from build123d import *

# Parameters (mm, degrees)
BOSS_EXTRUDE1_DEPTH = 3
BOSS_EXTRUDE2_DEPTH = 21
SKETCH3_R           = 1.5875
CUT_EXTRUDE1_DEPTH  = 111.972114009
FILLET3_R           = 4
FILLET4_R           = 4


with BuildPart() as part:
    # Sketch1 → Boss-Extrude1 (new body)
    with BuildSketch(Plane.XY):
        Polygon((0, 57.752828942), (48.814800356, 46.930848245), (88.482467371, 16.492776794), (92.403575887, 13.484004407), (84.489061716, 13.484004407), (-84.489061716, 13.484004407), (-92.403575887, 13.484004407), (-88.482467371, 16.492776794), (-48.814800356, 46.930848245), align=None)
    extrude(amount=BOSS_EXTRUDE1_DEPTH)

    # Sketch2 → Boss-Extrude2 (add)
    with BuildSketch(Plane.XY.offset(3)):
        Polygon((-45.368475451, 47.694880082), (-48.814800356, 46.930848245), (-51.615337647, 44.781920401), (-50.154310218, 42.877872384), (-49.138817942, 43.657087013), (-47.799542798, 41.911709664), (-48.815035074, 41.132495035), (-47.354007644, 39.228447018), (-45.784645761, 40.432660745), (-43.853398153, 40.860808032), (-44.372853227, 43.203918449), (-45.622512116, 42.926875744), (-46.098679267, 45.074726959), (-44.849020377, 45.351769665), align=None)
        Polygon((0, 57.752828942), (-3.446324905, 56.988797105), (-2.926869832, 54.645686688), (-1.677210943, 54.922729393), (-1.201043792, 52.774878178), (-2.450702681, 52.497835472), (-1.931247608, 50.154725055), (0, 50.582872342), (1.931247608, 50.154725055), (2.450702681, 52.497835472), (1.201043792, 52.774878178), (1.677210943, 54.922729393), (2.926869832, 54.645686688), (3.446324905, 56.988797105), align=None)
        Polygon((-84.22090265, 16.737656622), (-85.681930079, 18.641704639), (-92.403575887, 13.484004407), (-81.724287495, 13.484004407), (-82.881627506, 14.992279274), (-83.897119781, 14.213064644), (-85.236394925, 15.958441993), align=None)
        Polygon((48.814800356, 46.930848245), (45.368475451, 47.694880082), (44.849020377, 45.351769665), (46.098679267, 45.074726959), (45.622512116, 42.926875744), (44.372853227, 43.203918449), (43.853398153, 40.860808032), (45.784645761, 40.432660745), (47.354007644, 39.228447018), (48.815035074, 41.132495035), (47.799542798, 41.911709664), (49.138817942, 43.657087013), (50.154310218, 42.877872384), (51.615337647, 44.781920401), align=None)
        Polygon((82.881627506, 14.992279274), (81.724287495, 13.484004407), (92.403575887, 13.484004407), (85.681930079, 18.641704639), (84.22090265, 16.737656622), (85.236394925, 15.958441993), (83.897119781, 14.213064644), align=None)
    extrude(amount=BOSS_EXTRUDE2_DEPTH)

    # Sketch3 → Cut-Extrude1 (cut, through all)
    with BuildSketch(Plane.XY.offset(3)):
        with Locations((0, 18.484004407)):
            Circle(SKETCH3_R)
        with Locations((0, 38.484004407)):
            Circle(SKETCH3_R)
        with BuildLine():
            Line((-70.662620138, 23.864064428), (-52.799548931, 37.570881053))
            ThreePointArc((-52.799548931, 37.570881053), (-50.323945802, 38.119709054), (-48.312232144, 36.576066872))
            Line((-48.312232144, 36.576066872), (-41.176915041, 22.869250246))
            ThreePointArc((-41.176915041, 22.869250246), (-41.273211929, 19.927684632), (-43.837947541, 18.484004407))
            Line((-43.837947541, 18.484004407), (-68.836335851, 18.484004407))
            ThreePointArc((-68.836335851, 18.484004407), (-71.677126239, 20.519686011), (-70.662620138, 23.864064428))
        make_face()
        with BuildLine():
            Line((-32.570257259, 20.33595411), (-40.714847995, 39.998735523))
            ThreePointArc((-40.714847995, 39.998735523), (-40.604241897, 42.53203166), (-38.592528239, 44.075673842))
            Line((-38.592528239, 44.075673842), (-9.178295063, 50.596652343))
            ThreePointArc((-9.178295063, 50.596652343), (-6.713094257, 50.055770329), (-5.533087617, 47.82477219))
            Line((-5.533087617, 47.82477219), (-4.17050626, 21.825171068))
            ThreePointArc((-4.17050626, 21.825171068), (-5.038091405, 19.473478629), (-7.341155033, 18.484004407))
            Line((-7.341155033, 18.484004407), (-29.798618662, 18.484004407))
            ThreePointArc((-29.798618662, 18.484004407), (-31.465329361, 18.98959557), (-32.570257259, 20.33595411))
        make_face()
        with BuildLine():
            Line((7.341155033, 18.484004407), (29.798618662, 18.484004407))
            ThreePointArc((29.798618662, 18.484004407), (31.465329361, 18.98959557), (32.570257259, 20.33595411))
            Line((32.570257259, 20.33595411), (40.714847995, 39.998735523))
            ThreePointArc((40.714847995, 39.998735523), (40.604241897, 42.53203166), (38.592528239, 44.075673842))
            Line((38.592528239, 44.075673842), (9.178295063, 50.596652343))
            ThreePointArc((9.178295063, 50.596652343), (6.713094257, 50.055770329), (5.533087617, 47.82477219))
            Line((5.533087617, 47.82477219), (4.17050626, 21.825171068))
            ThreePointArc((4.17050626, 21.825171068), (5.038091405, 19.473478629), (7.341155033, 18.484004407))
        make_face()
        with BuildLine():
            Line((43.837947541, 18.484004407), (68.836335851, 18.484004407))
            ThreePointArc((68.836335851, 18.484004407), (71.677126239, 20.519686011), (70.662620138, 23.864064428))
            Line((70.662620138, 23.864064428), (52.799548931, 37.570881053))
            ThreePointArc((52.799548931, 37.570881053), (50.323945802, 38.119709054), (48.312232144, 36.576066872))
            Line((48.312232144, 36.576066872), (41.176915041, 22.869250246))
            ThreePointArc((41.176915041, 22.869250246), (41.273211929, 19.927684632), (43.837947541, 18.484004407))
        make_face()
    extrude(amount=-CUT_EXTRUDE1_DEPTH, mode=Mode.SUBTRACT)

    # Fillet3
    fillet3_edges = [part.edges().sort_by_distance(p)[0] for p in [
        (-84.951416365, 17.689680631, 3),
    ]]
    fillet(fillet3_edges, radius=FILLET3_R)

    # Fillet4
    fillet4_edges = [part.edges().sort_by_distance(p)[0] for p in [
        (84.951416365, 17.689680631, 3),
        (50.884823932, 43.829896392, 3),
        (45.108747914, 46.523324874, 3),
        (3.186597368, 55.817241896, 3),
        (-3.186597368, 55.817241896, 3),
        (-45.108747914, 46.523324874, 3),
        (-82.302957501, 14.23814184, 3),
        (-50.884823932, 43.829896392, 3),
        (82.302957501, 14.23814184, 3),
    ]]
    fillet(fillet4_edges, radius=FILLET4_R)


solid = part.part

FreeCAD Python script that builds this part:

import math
import FreeCAD as App
import Part
import Sketcher
Q = App.Units.Quantity


def edges_at(feature, points):
    """Names of the edges that pass closest to the given points."""
    edges = feature.Shape.Edges
    near = lambda p: min(range(len(edges)), key=lambda i: edges[i].distToShape(Part.Vertex(*p))[0])
    return sorted({f"Edge{near(p) + 1}" for p in points})


def add_polygon(sketch, points):
    """Adds a closed chain of lines whose ends are joined by coincident constraints."""
    first, n = sketch.GeometryCount, len(points)
    for a, b in zip(points, points[1:] + points[:1]):
        sketch.addGeometry(Part.LineSegment(App.Vector(*a, 0), App.Vector(*b, 0)), False)
    for i in range(n):
        sketch.addConstraint(Sketcher.Constraint("Coincident", first + i, 2, first + (i + 1) % n, 1))

doc = App.newDocument("Part")
params = doc.addObject("Spreadsheet::Sheet", "Params")
for row, (alias, value) in enumerate([
    ("sketch1_length", "50 mm"),
    ("pad1_length", "3 mm"),
    ("sketch2_length", "2.4 mm"),
    ("sketch2_length2", "2.2 mm"),
    ("sketch2_length3", "3.53 mm"),
    ("sketch2_length4", "1.28 mm"),
    ("pad2_length", "21 mm"),
    ("sketch3_radius", "3 mm"),
    ("fillet_radius", "4 mm"),
    ("fillet2_radius", "4 mm"),
], start=1):
    params.set(f"A{row}", alias)
    params.set(f"B{row}", "=" + value)
    params.setAlias(f"B{row}", alias)

body = doc.addObject("PartDesign::Body", "Body")

sketch1 = body.newObject("Sketcher::SketchObject", "Sketch")
sketch1.AttachmentSupport = (doc.getObject("XY_Plane"), [""])
sketch1.MapMode = "FlatFace"
add_polygon(sketch1, [(48.8148, 46.930848), (0, 57.752829), (-48.8148, 46.930848), (-88.482467, 16.492777), (-92.403576, 13.484004), (92.403576, 13.484004), (88.482467, 16.492777)])
sketch1.addConstraint([
    Sketcher.Constraint("Horizontal", 4),
    Sketcher.Constraint("Symmetric", 2, 2, 5, 2, -2),
    Sketcher.Constraint("Symmetric", 1, 2, 6, 2, -2),
    Sketcher.Constraint("PointOnObject", 0, 2, -2),
    Sketcher.Constraint("Parallel", 2, 3),
    Sketcher.Constraint("Parallel", 5, 6),
    Sketcher.Constraint("Equal", 1, 2),
    Sketcher.Constraint("Distance", 0, 50.0),
    Sketcher.Constraint("Angle", 0, Q("167.5 deg")),
    Sketcher.Constraint("Angle", 2, Q("-142.5 deg")),
    Sketcher.Constraint("DistanceX", 4, 1, 4, 2, 184.807152),
    Sketcher.Constraint("DistanceY", -1, 1, 0, 2, 57.752829),
])
sketch1.setExpression("Constraints[14]", "Params.sketch1_length")
pad1 = body.newObject("PartDesign::Pad", "Pad")
pad1.Profile = sketch1
pad1.setExpression("Length", "Params.pad1_length")

sketch2 = body.newObject("Sketcher::SketchObject", "Sketch001")
sketch2.AttachmentSupport = (doc.getObject("XY_Plane"), [""])
sketch2.MapMode = "FlatFace"
sketch2.AttachmentOffset = App.Placement(App.Vector(0, 0, 3), App.Rotation())
add_polygon(sketch2, [(-45.368475, 47.69488), (-48.8148, 46.930848), (-51.615338, 44.78192), (-50.15431, 42.877872), (-49.138818, 43.657087), (-47.799543, 41.91171), (-48.815035, 41.132495), (-47.354008, 39.228447), (-45.784646, 40.432661), (-43.853398, 40.860808), (-44.372853, 43.203918), (-45.622512, 42.926876), (-46.098679, 45.074727), (-44.84902, 45.35177)])
add_polygon(sketch2, [(0, 57.752829), (-3.446325, 56.988797), (-2.92687, 54.645687), (-1.677211, 54.922729), (-1.201044, 52.774878), (-2.450703, 52.497835), (-1.931248, 50.154725), (0, 50.582872), (1.931248, 50.154725), (2.450703, 52.497835), (1.201044, 52.774878), (1.677211, 54.922729), (2.92687, 54.645687), (3.446325, 56.988797)])
add_polygon(sketch2, [(-84.220903, 16.737657), (-85.68193, 18.641705), (-92.403576, 13.484004), (-81.724287, 13.484004), (-82.881628, 14.992279), (-83.89712, 14.213065), (-85.236395, 15.958442)])
add_polygon(sketch2, [(48.8148, 46.930848), (45.368475, 47.69488), (44.84902, 45.35177), (46.098679, 45.074727), (45.622512, 42.926876), (44.372853, 43.203918), (43.853398, 40.860808), (45.784646, 40.432661), (47.354008, 39.228447), (48.815035, 41.132495), (47.799543, 41.91171), (49.138818, 43.657087), (50.15431, 42.877872), (51.615338, 44.78192)])
add_polygon(sketch2, [(82.881628, 14.992279), (81.724287, 13.484004), (92.403576, 13.484004), (85.68193, 18.641705), (84.220903, 16.737657), (85.236395, 15.958442), (83.89712, 14.213065)])
sketch2.addConstraint([
    Sketcher.Constraint("Horizontal", 30),
    Sketcher.Constraint("Horizontal", 50),
    Sketcher.Constraint("Symmetric", 19, 2, 21, 2, -2),
    Sketcher.Constraint("Symmetric", 18, 2, 22, 2, -2),
    Sketcher.Constraint("Symmetric", 17, 2, 23, 2, -2),
    Sketcher.Constraint("Symmetric", 16, 2, 24, 2, -2),
    Sketcher.Constraint("Symmetric", 15, 2, 25, 2, -2),
    Sketcher.Constraint("Symmetric", 14, 2, 26, 2, -2),
    Sketcher.Constraint("Symmetric", 13, 2, 35, 2, -2),
    Sketcher.Constraint("Symmetric", 12, 2, 36, 2, -2),
    Sketcher.Constraint("Symmetric", 11, 2, 37, 2, -2),
    Sketcher.Constraint("Symmetric", 10, 2, 38, 2, -2),
    Sketcher.Constraint("Symmetric", 9, 2, 39, 2, -2),
    Sketcher.Constraint("Symmetric", 8, 2, 40, 2, -2),
    Sketcher.Constraint("Symmetric", 7, 2, 41, 2, -2),
    Sketcher.Constraint("Symmetric", 6, 2, 42, 2, -2),
    Sketcher.Constraint("Symmetric", 5, 2, 43, 2, -2),
    Sketcher.Constraint("Symmetric", 4, 2, 44, 2, -2),
    Sketcher.Constraint("Symmetric", 3, 2, 45, 2, -2),
    Sketcher.Constraint("Symmetric", 2, 2, 46, 2, -2),
    Sketcher.Constraint("Symmetric", 1, 2, 47, 2, -2),
    Sketcher.Constraint("Symmetric", 0, 2, 48, 2, -2),
    Sketcher.Constraint("Symmetric", 30, 2, 49, 2, -2),
    Sketcher.Constraint("Symmetric", 28, 2, 51, 2, -2),
    Sketcher.Constraint("Symmetric", 34, 2, 52, 2, -2),
    Sketcher.Constraint("Symmetric", 33, 2, 53, 2, -2),
    Sketcher.Constraint("Symmetric", 32, 2, 54, 2, -2),
    Sketcher.Constraint("Symmetric", 31, 2, 55, 2, -2),
    Sketcher.Constraint("PointOnObject", 20, 2, -2),
    Sketcher.Constraint("PointOnObject", 27, 2, -2),
    Sketcher.Constraint("Perpendicular", 1, 2),
    Sketcher.Constraint("Perpendicular", 2, 3),
    Sketcher.Constraint("Perpendicular", 3, 4),
    Sketcher.Constraint("Perpendicular", 4, 5),
    Sketcher.Constraint("Perpendicular", 5, 6),
    Sketcher.Constraint("Perpendicular", 6, 7),
    Sketcher.Constraint("Parallel", 0, 8),
    Sketcher.Constraint("Perpendicular", 8, 9),
    Sketcher.Constraint("Perpendicular", 9, 10),
    Sketcher.Constraint("Perpendicular", 10, 11),
    Sketcher.Constraint("Perpendicular", 11, 12),
    Sketcher.Constraint("Perpendicular", 12, 13),
    Sketcher.Constraint("Perpendicular", 13, 14),
    Sketcher.Constraint("Perpendicular", 14, 15),
    Sketcher.Constraint("Perpendicular", 15, 16),
    Sketcher.Constraint("Perpendicular", 16, 17),
    Sketcher.Constraint("Perpendicular", 17, 18),
    Sketcher.Constraint("Perpendicular", 18, 19),
    Sketcher.Constraint("Perpendicular", 19, 20),
    Sketcher.Constraint("Perpendicular", 7, 28),
    Sketcher.Constraint("Perpendicular", 28, 29),
    Sketcher.Constraint("Perpendicular", 29, 31),
    Sketcher.Constraint("Perpendicular", 31, 32),
    Sketcher.Constraint("Perpendicular", 32, 33),
    Sketcher.Constraint("Perpendicular", 33, 34),
    Sketcher.Constraint("Perpendicular", 49, 51),
    Sketcher.Constraint("Equal", 0, 1),
    Sketcher.Constraint("Equal", 3, 5),
    Sketcher.Constraint("Equal", 2, 6),
    Sketcher.Constraint("Equal", 7, 8),
    Sketcher.Constraint("Equal", 6, 9),
    Sketcher.Constraint("Equal", 5, 10),
    Sketcher.Constraint("Equal", 4, 11),
    Sketcher.Constraint("Equal", 10, 12),
    Sketcher.Constraint("Equal", 1, 14),
    Sketcher.Constraint("Equal", 13, 15),
    Sketcher.Constraint("Equal", 12, 16),
    Sketcher.Constraint("Equal", 11, 17),
    Sketcher.Constraint("Equal", 16, 18),
    Sketcher.Constraint("Equal", 15, 19),
    Sketcher.Constraint("Equal", 8, 20),
    Sketcher.Constraint("Equal", 26, 28),
    Sketcher.Constraint("Equal", 25, 32),
    Sketcher.Constraint("Equal", 24, 33),
    Sketcher.Constraint("Equal", 32, 34),
    Sketcher.Constraint("Angle", 0, Q("-167.5 deg")),
    Sketcher.Constraint("Distance", 2, 2.4),
    Sketcher.Constraint("Distance", 4, 2.2),
    Sketcher.Constraint("Distance", 0, 3.53),
    Sketcher.Constraint("Distance", 3, 1.28),
    Sketcher.Constraint("DistanceX", 30, 1, 30, 2, 10.679288),
    Sketcher.Constraint("DistanceX", 0, 2, -1, 1, 48.8148),
    Sketcher.Constraint("DistanceY", -1, 1, 0, 2, 46.930848),
    Sketcher.Constraint("DistanceY", -1, 1, 16, 2, 54.922729),
    Sketcher.Constraint("DistanceX", 28, 2, -1, 1, 85.68193),
    Sketcher.Constraint("DistanceY", -1, 1, 31, 2, 14.992279),
])
sketch2.setExpression("Constraints[132]", "Params.sketch2_length")
sketch2.setExpression("Constraints[133]", "Params.sketch2_length2")
sketch2.setExpression("Constraints[134]", "Params.sketch2_length3")
sketch2.setExpression("Constraints[135]", "Params.sketch2_length4")
pad2 = body.newObject("PartDesign::Pad", "Pad001")
pad2.Profile = sketch2
pad2.setExpression("Length", "Params.pad2_length")

sketch3 = body.newObject("Sketcher::SketchObject", "Sketch002")
sketch3.AttachmentSupport = (doc.getObject("XY_Plane"), [""])
sketch3.MapMode = "FlatFace"
sketch3.AttachmentOffset = App.Placement(App.Vector(0, 0, 3), App.Rotation())
sketch3.addGeometry([
    Part.Circle(App.Vector(0, 18.484004, 0), App.Vector(0, 0, 1), 1.5875),
    Part.Circle(App.Vector(0, 38.484004, 0), App.Vector(0, 0, 1), 1.5875),
    Part.LineSegment(App.Vector(-52.799549, 37.570881, 0), App.Vector(-70.66262, 23.864064, 0)),
    Part.ArcOfCircle(Part.Circle(App.Vector(-68.836336, 21.484004, 0), App.Vector(0, 0, 1), 3), math.radians(127.5), math.radians(270)),
    Part.LineSegment(App.Vector(-68.836336, 18.484004, 0), App.Vector(-43.837948, 18.484004, 0)),
    Part.ArcOfCircle(Part.Circle(App.Vector(-43.837948, 21.484004, 0), App.Vector(0, 0, 1), 3), math.radians(-90), math.radians(27.5)),
    Part.LineSegment(App.Vector(-41.176915, 22.86925, 0), App.Vector(-48.312232, 36.576067, 0)),
    Part.ArcOfCircle(Part.Circle(App.Vector(-50.973265, 35.190821, 0), App.Vector(0, 0, 1), 3), math.radians(27.5), math.radians(127.5)),
    Part.LineSegment(App.Vector(-40.714848, 39.998736, 0), App.Vector(-32.570257, 20.335954, 0)),
    Part.ArcOfCircle(Part.Circle(App.Vector(-29.798619, 21.484004, 0), App.Vector(0, 0, 1), 3), math.radians(-157.5), math.radians(-90)),
    Part.LineSegment(App.Vector(-29.798619, 18.484004, 0), App.Vector(-7.341155, 18.484004, 0)),
    Part.ArcOfCircle(Part.Circle(App.Vector(-7.341155, 21.659004, 0), App.Vector(0, 0, 1), 3.175), math.radians(-90), math.radians(3)),
    Part.LineSegment(App.Vector(-4.170506, 21.825171, 0), App.Vector(-5.533088, 47.824772, 0)),
    Part.ArcOfCircle(Part.Circle(App.Vector(-8.528976, 47.667764, 0), App.Vector(0, 0, 1), 3), math.radians(3), math.radians(102.5)),
    Part.LineSegment(App.Vector(-9.178295, 50.596652, 0), App.Vector(-38.592528, 44.075674, 0)),
    Part.ArcOfCircle(Part.Circle(App.Vector(-37.943209, 41.146786, 0), App.Vector(0, 0, 1), 3), math.radians(102.5), math.radians(202.5)),
    Part.LineSegment(App.Vector(7.341155, 18.484004, 0), App.Vector(29.798619, 18.484004, 0)),
    Part.ArcOfCircle(Part.Circle(App.Vector(29.798619, 21.484004, 0), App.Vector(0, 0, 1), 3), math.radians(-90), math.radians(-22.5)),
    Part.LineSegment(App.Vector(32.570257, 20.335954, 0), App.Vector(40.714848, 39.998736, 0)),
    Part.ArcOfCircle(Part.Circle(App.Vector(37.943209, 41.146786, 0), App.Vector(0, 0, 1), 3), math.radians(-22.5), math.radians(77.5)),
    Part.LineSegment(App.Vector(38.592528, 44.075674, 0), App.Vector(9.178295, 50.596652, 0)),
    Part.ArcOfCircle(Part.Circle(App.Vector(8.528976, 47.667764, 0), App.Vector(0, 0, 1), 3), math.radians(77.5), math.radians(177)),
    Part.LineSegment(App.Vector(5.533088, 47.824772, 0), App.Vector(4.170506, 21.825171, 0)),
    Part.ArcOfCircle(Part.Circle(App.Vector(7.341155, 21.659004, 0), App.Vector(0, 0, 1), 3.175), math.radians(177), math.radians(270)),
    Part.LineSegment(App.Vector(43.837948, 18.484004, 0), App.Vector(68.836336, 18.484004, 0)),
    Part.ArcOfCircle(Part.Circle(App.Vector(68.836336, 21.484004, 0), App.Vector(0, 0, 1), 3), math.radians(-90), math.radians(52.5)),
    Part.LineSegment(App.Vector(70.66262, 23.864064, 0), App.Vector(52.799549, 37.570881, 0)),
    Part.ArcOfCircle(Part.Circle(App.Vector(50.973265, 35.190821, 0), App.Vector(0, 0, 1), 3), math.radians(52.5), math.radians(152.5)),
    Part.LineSegment(App.Vector(48.312232, 36.576067, 0), App.Vector(41.176915, 22.86925, 0)),
    Part.ArcOfCircle(Part.Circle(App.Vector(43.837948, 21.484004, 0), App.Vector(0, 0, 1), 3), math.radians(152.5), math.radians(270)),
], False)
sketch3.addConstraint([
    Sketcher.Constraint("Tangent", 2, 2, 3, 1),
    Sketcher.Constraint("Tangent", 3, 2, 4, 1),
    Sketcher.Constraint("Tangent", 4, 2, 5, 1),
    Sketcher.Constraint("Tangent", 5, 2, 6, 1),
    Sketcher.Constraint("Tangent", 6, 2, 7, 1),
    Sketcher.Constraint("Tangent", 7, 2, 2, 1),
    Sketcher.Constraint("Tangent", 8, 2, 9, 1),
    Sketcher.Constraint("Tangent", 9, 2, 10, 1),
    Sketcher.Constraint("Tangent", 10, 2, 11, 1),
    Sketcher.Constraint("Tangent", 11, 2, 12, 1),
    Sketcher.Constraint("Tangent", 12, 2, 13, 1),
    Sketcher.Constraint("Tangent", 13, 2, 14, 1),
    Sketcher.Constraint("Tangent", 14, 2, 15, 1),
    Sketcher.Constraint("Tangent", 15, 2, 8, 1),
    Sketcher.Constraint("Tangent", 16, 2, 17, 1),
    Sketcher.Constraint("Tangent", 17, 2, 18, 1),
    Sketcher.Constraint("Tangent", 18, 2, 19, 1),
    Sketcher.Constraint("Tangent", 19, 2, 20, 1),
    Sketcher.Constraint("Tangent", 20, 2, 21, 1),
    Sketcher.Constraint("Tangent", 21, 2, 22, 1),
    Sketcher.Constraint("Tangent", 22, 2, 23, 1),
    Sketcher.Constraint("Tangent", 23, 2, 16, 1),
    Sketcher.Constraint("Tangent", 24, 2, 25, 1),
    Sketcher.Constraint("Tangent", 25, 2, 26, 1),
    Sketcher.Constraint("Tangent", 26, 2, 27, 1),
    Sketcher.Constraint("Tangent", 27, 2, 28, 1),
    Sketcher.Constraint("Tangent", 28, 2, 29, 1),
    Sketcher.Constraint("Tangent", 29, 2, 24, 1),
    Sketcher.Constraint("Horizontal", 4),
    Sketcher.Constraint("Horizontal", 10),
    Sketcher.Constraint("Horizontal", 16),
    Sketcher.Constraint("Horizontal", 24),
    Sketcher.Constraint("Equal", 0, 1),
    Sketcher.Constraint("Equal", 3, 5),
    Sketcher.Constraint("Equal", 5, 7),
    Sketcher.Constraint("Equal", 7, 9),
    Sketcher.Constraint("Equal", 9, 13),
    Sketcher.Constraint("Equal", 13, 15),
    Sketcher.Constraint("Equal", 15, 17),
    Sketcher.Constraint("Equal", 17, 19),
    Sketcher.Constraint("Equal", 19, 21),
    Sketcher.Constraint("Equal", 11, 23),
    Sketcher.Constraint("Equal", 21, 25),
    Sketcher.Constraint("Equal", 25, 27),
    Sketcher.Constraint("Equal", 27, 29),
    Sketcher.Constraint("Symmetric", 9, 3, 17, 3, -2),
    Sketcher.Constraint("Symmetric", 15, 3, 19, 3, -2),
    Sketcher.Constraint("Symmetric", 13, 3, 21, 3, -2),
    Sketcher.Constraint("Symmetric", 3, 3, 25, 3, -2),
    Sketcher.Constraint("Symmetric", 7, 3, 27, 3, -2),
    Sketcher.Constraint("PointOnObject", 0, 3, -2),
    Sketcher.Constraint("PointOnObject", 1, 3, -2),
    Sketcher.Constraint("Horizontal", 5, 3, 9, 3),
    Sketcher.Constraint("Horizontal", 0, 3, 3, 2),
    Sketcher.Constraint("Horizontal", 12, 2, 21, 2),
    Sketcher.Constraint("Horizontal", 6, 2, 27, 2),
    Sketcher.Constraint("Radius", 3, 3.0),
    Sketcher.Constraint("Angle", 12, Q("93 deg")),
    Sketcher.Constraint("Diameter", 0, 3.175),
    Sketcher.Constraint("Angle", 2, Q("-142.5 deg")),
    Sketcher.Constraint("Angle", 6, Q("117.5 deg")),
    Sketcher.Constraint("Angle", 8, Q("-67.5 deg")),
    Sketcher.Constraint("Angle", 14, Q("-167.5 deg")),
    Sketcher.Constraint("Radius", 11, 3.175),
    Sketcher.Constraint("DistanceY", 0, 3, 1, 3, 20.0),
    Sketcher.Constraint("DistanceX", 2, 2, 9, 3, 40.864001),
    Sketcher.Constraint("DistanceX", 4, 1, 4, 2, 24.998388),
    Sketcher.Constraint("DistanceY", 11, 2, 12, 2, 25.999601),
    Sketcher.Constraint("DistanceX", 7, 2, 15, 2, 12.084701),
    Sketcher.Constraint("DistanceY", -1, 1, 7, 3, 35.190821),
    Sketcher.Constraint("DistanceX", 9, 3, -1, 1, 29.798619),
])
sketch3.setExpression("Constraints[56]", "Params.sketch3_radius")
pocket1 = body.newObject("PartDesign::Pocket", "Pocket")
pocket1.Profile = sketch3
pocket1.Type = "ThroughAll"
doc.recompute()

fillet = body.newObject("PartDesign::Fillet", "Fillet")
fillet.Base = (pocket1, edges_at(pocket1, [(-84.951, 17.69, 3)]))
fillet.setExpression("Radius", "Params.fillet_radius")
doc.recompute()

fillet2 = body.newObject("PartDesign::Fillet", "Fillet001")
fillet2.Base = (fillet, edges_at(fillet, [
    (84.951, 17.69, 3),
    (50.885, 43.83, 3),
    (45.109, 46.523, 3),
    (3.187, 55.817, 3),
    (-3.187, 55.817, 3),
    (-45.109, 46.523, 3),
    (-82.303, 14.238, 3),
    (-50.885, 43.83, 3),
    (82.303, 14.238, 3),
]))
fillet2.setExpression("Radius", "Params.fillet2_radius")

doc.recompute()
